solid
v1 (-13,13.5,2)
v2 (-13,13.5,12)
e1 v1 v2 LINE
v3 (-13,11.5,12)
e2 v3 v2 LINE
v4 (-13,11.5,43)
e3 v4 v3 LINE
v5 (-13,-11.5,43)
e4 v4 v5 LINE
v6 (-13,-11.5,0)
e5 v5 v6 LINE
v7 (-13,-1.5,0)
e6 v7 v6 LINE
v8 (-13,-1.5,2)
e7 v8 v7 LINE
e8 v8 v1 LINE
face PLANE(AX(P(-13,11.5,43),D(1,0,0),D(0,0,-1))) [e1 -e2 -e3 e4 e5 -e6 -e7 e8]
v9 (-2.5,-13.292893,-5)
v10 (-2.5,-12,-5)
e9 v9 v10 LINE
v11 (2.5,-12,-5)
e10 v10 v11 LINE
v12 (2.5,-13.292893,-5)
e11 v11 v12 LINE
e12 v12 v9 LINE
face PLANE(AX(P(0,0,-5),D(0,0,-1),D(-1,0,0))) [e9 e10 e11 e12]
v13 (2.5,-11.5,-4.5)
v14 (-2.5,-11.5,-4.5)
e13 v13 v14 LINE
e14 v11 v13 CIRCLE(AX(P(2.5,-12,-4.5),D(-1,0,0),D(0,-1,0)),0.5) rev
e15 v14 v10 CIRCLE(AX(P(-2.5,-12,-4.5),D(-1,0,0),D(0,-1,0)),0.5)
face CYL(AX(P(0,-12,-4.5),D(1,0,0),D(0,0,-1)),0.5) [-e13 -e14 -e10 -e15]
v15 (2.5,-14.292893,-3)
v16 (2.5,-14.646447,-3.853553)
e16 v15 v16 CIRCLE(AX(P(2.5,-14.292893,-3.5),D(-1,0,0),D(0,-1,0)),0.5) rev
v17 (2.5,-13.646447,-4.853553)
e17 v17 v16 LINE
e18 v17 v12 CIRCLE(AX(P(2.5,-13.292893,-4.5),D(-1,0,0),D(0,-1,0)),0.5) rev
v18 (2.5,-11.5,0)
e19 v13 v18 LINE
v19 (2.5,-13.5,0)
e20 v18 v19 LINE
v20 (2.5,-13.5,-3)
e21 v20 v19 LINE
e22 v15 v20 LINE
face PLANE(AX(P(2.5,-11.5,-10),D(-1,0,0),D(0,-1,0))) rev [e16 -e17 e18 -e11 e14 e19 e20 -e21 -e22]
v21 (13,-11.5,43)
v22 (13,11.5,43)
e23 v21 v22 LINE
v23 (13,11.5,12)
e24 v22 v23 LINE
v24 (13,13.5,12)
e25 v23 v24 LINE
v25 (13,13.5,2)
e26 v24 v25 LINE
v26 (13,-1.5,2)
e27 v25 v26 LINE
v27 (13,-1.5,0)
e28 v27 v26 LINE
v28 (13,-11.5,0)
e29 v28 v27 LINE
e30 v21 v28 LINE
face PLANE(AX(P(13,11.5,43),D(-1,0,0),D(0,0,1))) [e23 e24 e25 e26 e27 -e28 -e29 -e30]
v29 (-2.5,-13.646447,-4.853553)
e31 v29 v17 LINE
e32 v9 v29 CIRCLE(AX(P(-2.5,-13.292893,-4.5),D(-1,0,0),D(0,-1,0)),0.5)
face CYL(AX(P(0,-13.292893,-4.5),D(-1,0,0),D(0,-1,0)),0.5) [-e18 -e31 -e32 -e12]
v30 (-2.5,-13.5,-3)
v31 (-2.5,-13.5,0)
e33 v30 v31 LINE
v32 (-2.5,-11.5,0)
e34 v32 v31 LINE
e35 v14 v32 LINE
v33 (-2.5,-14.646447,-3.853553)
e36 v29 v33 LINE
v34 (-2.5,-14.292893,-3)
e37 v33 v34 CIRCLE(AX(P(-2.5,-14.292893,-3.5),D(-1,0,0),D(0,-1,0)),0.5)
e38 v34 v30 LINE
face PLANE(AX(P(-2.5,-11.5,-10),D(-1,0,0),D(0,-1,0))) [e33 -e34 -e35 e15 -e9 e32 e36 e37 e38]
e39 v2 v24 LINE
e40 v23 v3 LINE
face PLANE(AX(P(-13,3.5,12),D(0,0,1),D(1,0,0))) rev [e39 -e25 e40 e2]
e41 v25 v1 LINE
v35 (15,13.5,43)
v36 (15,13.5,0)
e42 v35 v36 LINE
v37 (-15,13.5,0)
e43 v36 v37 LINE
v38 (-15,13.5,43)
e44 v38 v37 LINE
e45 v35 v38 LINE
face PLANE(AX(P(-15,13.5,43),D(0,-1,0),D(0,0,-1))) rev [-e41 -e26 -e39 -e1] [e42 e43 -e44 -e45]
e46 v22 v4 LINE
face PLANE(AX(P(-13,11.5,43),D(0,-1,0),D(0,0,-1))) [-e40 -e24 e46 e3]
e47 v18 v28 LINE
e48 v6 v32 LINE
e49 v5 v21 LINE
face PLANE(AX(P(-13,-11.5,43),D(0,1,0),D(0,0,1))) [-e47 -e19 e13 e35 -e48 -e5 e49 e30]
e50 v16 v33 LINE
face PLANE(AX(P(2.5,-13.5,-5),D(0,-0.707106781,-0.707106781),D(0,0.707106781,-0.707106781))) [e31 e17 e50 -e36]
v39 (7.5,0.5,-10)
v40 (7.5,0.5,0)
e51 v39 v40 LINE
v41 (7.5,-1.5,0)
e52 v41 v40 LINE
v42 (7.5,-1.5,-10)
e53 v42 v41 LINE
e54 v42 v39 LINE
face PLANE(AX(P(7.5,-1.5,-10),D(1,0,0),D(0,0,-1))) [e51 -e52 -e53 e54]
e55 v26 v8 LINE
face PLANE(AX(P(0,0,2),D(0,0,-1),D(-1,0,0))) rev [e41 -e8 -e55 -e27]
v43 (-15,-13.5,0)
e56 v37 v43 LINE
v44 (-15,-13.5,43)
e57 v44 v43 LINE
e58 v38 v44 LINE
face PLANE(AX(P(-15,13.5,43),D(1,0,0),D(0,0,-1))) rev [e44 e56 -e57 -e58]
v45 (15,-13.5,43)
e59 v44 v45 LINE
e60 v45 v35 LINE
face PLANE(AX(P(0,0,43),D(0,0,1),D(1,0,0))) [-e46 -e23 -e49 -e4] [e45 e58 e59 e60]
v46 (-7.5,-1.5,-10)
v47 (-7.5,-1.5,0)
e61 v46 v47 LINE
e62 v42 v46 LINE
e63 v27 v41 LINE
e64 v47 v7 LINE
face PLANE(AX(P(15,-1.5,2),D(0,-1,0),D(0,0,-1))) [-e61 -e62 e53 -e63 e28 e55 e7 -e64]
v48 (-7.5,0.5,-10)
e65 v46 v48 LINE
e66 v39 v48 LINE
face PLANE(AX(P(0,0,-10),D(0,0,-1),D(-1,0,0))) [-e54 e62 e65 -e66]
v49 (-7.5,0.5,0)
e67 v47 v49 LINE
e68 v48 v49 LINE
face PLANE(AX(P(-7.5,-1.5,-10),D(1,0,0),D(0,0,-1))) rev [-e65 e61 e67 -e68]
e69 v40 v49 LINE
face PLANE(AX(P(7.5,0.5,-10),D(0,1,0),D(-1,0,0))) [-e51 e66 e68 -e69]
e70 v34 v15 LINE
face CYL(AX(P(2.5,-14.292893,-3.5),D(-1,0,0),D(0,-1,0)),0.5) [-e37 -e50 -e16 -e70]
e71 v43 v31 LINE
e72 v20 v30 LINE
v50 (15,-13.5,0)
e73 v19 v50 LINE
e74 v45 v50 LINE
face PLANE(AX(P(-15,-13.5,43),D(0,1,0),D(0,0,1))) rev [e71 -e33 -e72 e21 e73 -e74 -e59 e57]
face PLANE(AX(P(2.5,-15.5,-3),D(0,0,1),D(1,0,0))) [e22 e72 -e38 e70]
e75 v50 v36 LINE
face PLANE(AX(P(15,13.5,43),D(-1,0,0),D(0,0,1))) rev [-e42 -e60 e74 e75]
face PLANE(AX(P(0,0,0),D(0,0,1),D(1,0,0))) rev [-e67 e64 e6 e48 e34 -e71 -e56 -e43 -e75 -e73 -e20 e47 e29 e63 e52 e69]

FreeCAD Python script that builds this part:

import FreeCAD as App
import Part
import Sketcher
from FreeCAD import Vector


def edges_at(feature, points):
    """Names of the edges that pass closest to the given points."""
    edges = feature.Shape.Edges
    near = lambda p: min(range(len(edges)), key=lambda i: edges[i].distToShape(Part.Vertex(*p))[0])
    return sorted({f"Edge{near(p) + 1}" for p in points})


def add_polygon(sketch, points):
    """Adds a closed chain of lines whose ends are joined by coincident constraints."""
    first, n = sketch.GeometryCount, len(points)
    for a, b in zip(points, points[1:] + points[:1]):
        sketch.addGeometry(Part.LineSegment(App.Vector(*a, 0), App.Vector(*b, 0)), False)
    for i in range(n):
        sketch.addConstraint(Sketcher.Constraint("Coincident", first + i, 2, first + (i + 1) % n, 1))

doc = App.newDocument("Part")
body = doc.addObject("PartDesign::Body", "Body")

# Sketch on XY plane
sketch1 = body.newObject("Sketcher::SketchObject", "Sketch")
sketch1.AttachmentSupport = (doc.getObject("XY_Plane"), [""])
sketch1.MapMode = "FlatFace"
add_polygon(sketch1, [(-15, 14), (-15, -14), (15, -14), (15, 14)])  # lines 0-3
add_polygon(sketch1, [(13, -12), (-13, -12), (-13, 12), (13, 12)])  # lines 4-7
sketch1.addConstraint([
    Sketcher.Constraint("Vertical", 0),
    Sketcher.Constraint("Horizontal", 1),
    Sketcher.Constraint("Vertical", 2),
    Sketcher.Constraint("Horizontal", 3),
    Sketcher.Constraint("Horizontal", 4),
    Sketcher.Constraint("Vertical", 5),
    Sketcher.Constraint("Horizontal", 6),
    Sketcher.Constraint("Vertical", 7),
    Sketcher.Constraint("Symmetric", 0, 2, 2, 2, -1, 1),
    Sketcher.Constraint("Symmetric", 4, 2, 6, 2, -1, 1),
    Sketcher.Constraint("DistanceX", 1, 1, 1, 2, 30.0),
    Sketcher.Constraint("DistanceX", 4, 2, 4, 1, 26.0),
    Sketcher.Constraint("DistanceY", 0, 2, 0, 1, 27.0),
    Sketcher.Constraint("DistanceY", 5, 1, 5, 2, 23.0),
])
pad1 = body.newObject("PartDesign::Pad", "Pad")
pad1.Profile = sketch1
pad1.Length = 43

# Sketch on XY plane
sketch2 = body.newObject("Sketcher::SketchObject", "Sketch001")
sketch2.AttachmentSupport = (doc.getObject("XY_Plane"), [""])
sketch2.MapMode = "FlatFace"
add_polygon(sketch2, [(15, 14), (15, -2), (-15, -2), (-15, 14)])  # lines 0-3
sketch2.addConstraint([
    Sketcher.Constraint("Vertical", 0),
    Sketcher.Constraint("Horizontal", 1),
    Sketcher.Constraint("Vertical", 2),
    Sketcher.Constraint("Horizontal", 3),
    Sketcher.Constraint("DistanceX", 1, 2, 1, 1, 30.0),
    Sketcher.Constraint("DistanceY", 0, 2, 0, 1, 15.0),
    Sketcher.Constraint("DistanceX", -1, 1, 0, 2, 15.0),
    Sketcher.Constraint("DistanceY", 0, 2, -1, 1, 1.5),
])
pad2 = body.newObject("PartDesign::Pad", "Pad001")
pad2.Profile = sketch2
pad2.Length = 2

# Sketch on XY plane
sketch3 = body.newObject("Sketcher::SketchObject", "Sketch002")
sketch3.AttachmentSupport = (doc.getObject("XY_Plane"), [""])
sketch3.MapMode = "FlatFace"
add_polygon(sketch3, [(7.5, 0.5), (7.5, -1.5), (-7.5, -1.5), (-7.5, 0.5)])  # lines 0-3
add_polygon(sketch3, [(2.5, -11.5), (2.5, -13.5), (-2.5, -13.5), (-2.5, -11.5)])  # lines 4-7
sketch3.addConstraint([
    Sketcher.Constraint("Vertical", 0),
    Sketcher.Constraint("Horizontal", 1),
    Sketcher.Constraint("Vertical", 2),
    Sketcher.Constraint("Horizontal", 3),
    Sketcher.Constraint("Vertical", 4),
    Sketcher.Constraint("Horizontal", 5),
    Sketcher.Constraint("Vertical", 6),
    Sketcher.Constraint("Horizontal", 7),
    Sketcher.Constraint("Equal", 2, 4),
    Sketcher.Constraint("DistanceX", 1, 2, 1, 1, 15.0),
    Sketcher.Constraint("DistanceX", 5, 2, 5, 1, 5.0),
    Sketcher.Constraint("DistanceY", 0, 2, 0, 1, 2.0),
    Sketcher.Constraint("DistanceX", 4, 2, 0, 2, 5.0),
    Sketcher.Constraint("DistanceY", 4, 2, 0, 2, 12.0),
    Sketcher.Constraint("DistanceX", -1, 1, 0, 2, 7.5),
    Sketcher.Constraint("DistanceY", 0, 2, -1, 1, 1.5),
])
pad3 = body.newObject("PartDesign::Pad", "Pad002")
pad3.Profile = sketch3
pad3.Length = 10
pad3.Reversed = True

# Sketch on YZ plane
sketch4 = body.newObject("Sketcher::SketchObject", "Sketch003")
sketch4.AttachmentSupport = (doc.getObject("YZ_Plane"), [""])
sketch4.MapMode = "FlatFace"
sketch4.AttachmentOffset = App.Placement(Vector(0, 0, -2.5), App.Rotation())
add_polygon(sketch4, [(-13.5, -5), (-15.5, -3), (-13.5, -3)])  # lines 0-2
sketch4.addConstraint([
    Sketcher.Constraint("Horizontal", 1),
    Sketcher.Constraint("Vertical", 2),
    Sketcher.Constraint("Equal", 1, 2),
    Sketcher.Constraint("DistanceX", 1, 1, 1, 2, 2.0),
    Sketcher.Constraint("DistanceY", 0, 2, -1, 1, 3.0),
    Sketcher.Constraint("DistanceX", 0, 2, -1, 1, 15.5),
])
pad4 = body.newObject("PartDesign::Pad", "Pad003")
pad4.Profile = sketch4
pad4.Length = 5

# Sketch on XY plane
sketch5 = body.newObject("Sketcher::SketchObject", "Sketch004")
sketch5.AttachmentSupport = (doc.getObject("XY_Plane"), [""])
sketch5.MapMode = "FlatFace"
sketch5.AttachmentOffset = App.Placement(Vector(0, 0, -10), App.Rotation())
add_polygon(sketch5, [(2.5, -11.5), (2.5, -13.5), (-2.5, -13.5), (-2.5, -11.5)])  # lines 0-3
sketch5.addConstraint([
    Sketcher.Constraint("Vertical", 0),
    Sketcher.Constraint("Horizontal", 1),
    Sketcher.Constraint("Vertical", 2),
    Sketcher.Constraint("Horizontal", 3),
    Sketcher.Constraint("DistanceX", 1, 2, 1, 1, 5.0),
    Sketcher.Constraint("DistanceY", 0, 2, 0, 1, 2.0),
    Sketcher.Constraint("DistanceX", -1, 1, 0, 2, 2.5),
    Sketcher.Constraint("DistanceY", 0, 2, -1, 1, 13.5),
])
pocket1 = body.newObject("PartDesign::Pocket", "Pocket")
pocket1.Profile = sketch5
pocket1.Length = 5
pocket1.Reversed = True
doc.recompute()

fillet = body.newObject("PartDesign::Fillet", "Fillet")
fillet.Base = (pocket1, edges_at(pocket1, [(0, -13.5, -5), (0, -15.5, -3), (0, -11.5, -5)]))
fillet.Radius = 0.5

# Sketch on XZ plane
sketch6 = body.newObject("Sketcher::SketchObject", "Sketch005")
sketch6.AttachmentSupport = (doc.getObject("XZ_Plane"), [""])
sketch6.MapMode = "FlatFace"
sketch6.AttachmentOffset = App.Placement(Vector(0, 0, -13.5), App.Rotation())
add_polygon(sketch6, [(-13, 2), (-13, 12), (13, 12), (13, 2)])  # lines 0-3
sketch6.addConstraint([
    Sketcher.Constraint("Vertical", 0),
    Sketcher.Constraint("Horizontal", 1),
    Sketcher.Constraint("Vertical", 2),
    Sketcher.Constraint("Horizontal", 3),
    Sketcher.Constraint("DistanceX", 1, 1, 1, 2, 26.0),
    Sketcher.Constraint("DistanceY", 0, 1, 0, 2, 10.0),
    Sketcher.Constraint("DistanceX", 0, 2, -1, 1, 13.0),
    Sketcher.Constraint("DistanceY", -1, 1, 0, 2, 12.0),
])
pocket2 = body.newObject("PartDesign::Pocket", "Pocket001")
pocket2.Profile = sketch6
pocket2.Length = 10
pocket2.Reversed = True

doc.recompute()
